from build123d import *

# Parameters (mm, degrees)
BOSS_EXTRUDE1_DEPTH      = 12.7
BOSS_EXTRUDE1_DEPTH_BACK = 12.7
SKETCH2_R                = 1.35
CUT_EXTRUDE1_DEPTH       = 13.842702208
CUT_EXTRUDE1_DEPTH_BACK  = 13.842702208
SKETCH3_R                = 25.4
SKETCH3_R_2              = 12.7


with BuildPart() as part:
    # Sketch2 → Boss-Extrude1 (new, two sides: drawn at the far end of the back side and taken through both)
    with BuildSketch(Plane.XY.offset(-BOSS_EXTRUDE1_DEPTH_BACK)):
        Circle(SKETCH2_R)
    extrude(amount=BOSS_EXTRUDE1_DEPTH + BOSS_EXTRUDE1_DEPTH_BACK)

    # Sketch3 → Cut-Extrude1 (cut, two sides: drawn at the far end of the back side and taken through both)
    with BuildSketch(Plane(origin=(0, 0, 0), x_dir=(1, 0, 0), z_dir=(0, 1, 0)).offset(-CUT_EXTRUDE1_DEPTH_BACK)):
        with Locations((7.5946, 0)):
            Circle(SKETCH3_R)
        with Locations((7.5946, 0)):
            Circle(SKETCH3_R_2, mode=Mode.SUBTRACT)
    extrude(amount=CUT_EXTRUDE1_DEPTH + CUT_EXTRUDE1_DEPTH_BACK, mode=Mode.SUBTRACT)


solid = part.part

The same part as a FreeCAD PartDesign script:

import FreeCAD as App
import Part
import Sketcher
Q = App.Units.Quantity

doc = App.newDocument("Part")
body = doc.addObject("PartDesign::Body", "Body")

sketch1 = body.newObject("Sketcher::SketchObject", "Sketch")
sketch1.AttachmentSupport = (doc.getObject("XY_Plane"), [""])
sketch1.MapMode = "FlatFace"
sketch1.addGeometry(Part.Circle(App.Vector(0, 0, 0), App.Vector(0, 0, 1), 1.35), False)
sketch1.addConstraint([
    Sketcher.Constraint("Coincident", 0, 3, -1, 1),
    Sketcher.Constraint("Diameter", 0, Q("2.7 mm")),
])
pad1 = body.newObject("PartDesign::Pad", "Pad")
pad1.Profile = sketch1
pad1.Type = "TwoLengths"
pad1.Length = Q("0.5 in")
pad1.Length2 = Q("0.5 in")

sketch2 = body.newObject("Sketcher::SketchObject", "Sketch001")
sketch2.AttachmentSupport = (doc.getObject("XZ_Plane"), [""])
sketch2.MapMode = "FlatFace"
sketch2.addGeometry([
    Part.Circle(App.Vector(7.5946, 0, 0), App.Vector(0, 0, 1), 25.4),
    Part.Circle(App.Vector(7.5946, 0, 0), App.Vector(0, 0, 1), 12.7),
], False)
sketch2.addConstraint([
    Sketcher.Constraint("Coincident", 1, 3, 0, 3),
    Sketcher.Constraint("PointOnObject", 0, 3, -1),
    Sketcher.Constraint("Diameter", 0, Q("2 in")),
    Sketcher.Constraint("Diameter", 1, Q("1 in")),
    Sketcher.Constraint("DistanceX", -1, 1, 0, 3, Q("0.299 in")),
])
pocket1 = body.newObject("PartDesign::Pocket", "Pocket")
pocket1.Profile = sketch2
pocket1.Type = "ThroughAll"
pocket1.Midplane = True

doc.recompute()
